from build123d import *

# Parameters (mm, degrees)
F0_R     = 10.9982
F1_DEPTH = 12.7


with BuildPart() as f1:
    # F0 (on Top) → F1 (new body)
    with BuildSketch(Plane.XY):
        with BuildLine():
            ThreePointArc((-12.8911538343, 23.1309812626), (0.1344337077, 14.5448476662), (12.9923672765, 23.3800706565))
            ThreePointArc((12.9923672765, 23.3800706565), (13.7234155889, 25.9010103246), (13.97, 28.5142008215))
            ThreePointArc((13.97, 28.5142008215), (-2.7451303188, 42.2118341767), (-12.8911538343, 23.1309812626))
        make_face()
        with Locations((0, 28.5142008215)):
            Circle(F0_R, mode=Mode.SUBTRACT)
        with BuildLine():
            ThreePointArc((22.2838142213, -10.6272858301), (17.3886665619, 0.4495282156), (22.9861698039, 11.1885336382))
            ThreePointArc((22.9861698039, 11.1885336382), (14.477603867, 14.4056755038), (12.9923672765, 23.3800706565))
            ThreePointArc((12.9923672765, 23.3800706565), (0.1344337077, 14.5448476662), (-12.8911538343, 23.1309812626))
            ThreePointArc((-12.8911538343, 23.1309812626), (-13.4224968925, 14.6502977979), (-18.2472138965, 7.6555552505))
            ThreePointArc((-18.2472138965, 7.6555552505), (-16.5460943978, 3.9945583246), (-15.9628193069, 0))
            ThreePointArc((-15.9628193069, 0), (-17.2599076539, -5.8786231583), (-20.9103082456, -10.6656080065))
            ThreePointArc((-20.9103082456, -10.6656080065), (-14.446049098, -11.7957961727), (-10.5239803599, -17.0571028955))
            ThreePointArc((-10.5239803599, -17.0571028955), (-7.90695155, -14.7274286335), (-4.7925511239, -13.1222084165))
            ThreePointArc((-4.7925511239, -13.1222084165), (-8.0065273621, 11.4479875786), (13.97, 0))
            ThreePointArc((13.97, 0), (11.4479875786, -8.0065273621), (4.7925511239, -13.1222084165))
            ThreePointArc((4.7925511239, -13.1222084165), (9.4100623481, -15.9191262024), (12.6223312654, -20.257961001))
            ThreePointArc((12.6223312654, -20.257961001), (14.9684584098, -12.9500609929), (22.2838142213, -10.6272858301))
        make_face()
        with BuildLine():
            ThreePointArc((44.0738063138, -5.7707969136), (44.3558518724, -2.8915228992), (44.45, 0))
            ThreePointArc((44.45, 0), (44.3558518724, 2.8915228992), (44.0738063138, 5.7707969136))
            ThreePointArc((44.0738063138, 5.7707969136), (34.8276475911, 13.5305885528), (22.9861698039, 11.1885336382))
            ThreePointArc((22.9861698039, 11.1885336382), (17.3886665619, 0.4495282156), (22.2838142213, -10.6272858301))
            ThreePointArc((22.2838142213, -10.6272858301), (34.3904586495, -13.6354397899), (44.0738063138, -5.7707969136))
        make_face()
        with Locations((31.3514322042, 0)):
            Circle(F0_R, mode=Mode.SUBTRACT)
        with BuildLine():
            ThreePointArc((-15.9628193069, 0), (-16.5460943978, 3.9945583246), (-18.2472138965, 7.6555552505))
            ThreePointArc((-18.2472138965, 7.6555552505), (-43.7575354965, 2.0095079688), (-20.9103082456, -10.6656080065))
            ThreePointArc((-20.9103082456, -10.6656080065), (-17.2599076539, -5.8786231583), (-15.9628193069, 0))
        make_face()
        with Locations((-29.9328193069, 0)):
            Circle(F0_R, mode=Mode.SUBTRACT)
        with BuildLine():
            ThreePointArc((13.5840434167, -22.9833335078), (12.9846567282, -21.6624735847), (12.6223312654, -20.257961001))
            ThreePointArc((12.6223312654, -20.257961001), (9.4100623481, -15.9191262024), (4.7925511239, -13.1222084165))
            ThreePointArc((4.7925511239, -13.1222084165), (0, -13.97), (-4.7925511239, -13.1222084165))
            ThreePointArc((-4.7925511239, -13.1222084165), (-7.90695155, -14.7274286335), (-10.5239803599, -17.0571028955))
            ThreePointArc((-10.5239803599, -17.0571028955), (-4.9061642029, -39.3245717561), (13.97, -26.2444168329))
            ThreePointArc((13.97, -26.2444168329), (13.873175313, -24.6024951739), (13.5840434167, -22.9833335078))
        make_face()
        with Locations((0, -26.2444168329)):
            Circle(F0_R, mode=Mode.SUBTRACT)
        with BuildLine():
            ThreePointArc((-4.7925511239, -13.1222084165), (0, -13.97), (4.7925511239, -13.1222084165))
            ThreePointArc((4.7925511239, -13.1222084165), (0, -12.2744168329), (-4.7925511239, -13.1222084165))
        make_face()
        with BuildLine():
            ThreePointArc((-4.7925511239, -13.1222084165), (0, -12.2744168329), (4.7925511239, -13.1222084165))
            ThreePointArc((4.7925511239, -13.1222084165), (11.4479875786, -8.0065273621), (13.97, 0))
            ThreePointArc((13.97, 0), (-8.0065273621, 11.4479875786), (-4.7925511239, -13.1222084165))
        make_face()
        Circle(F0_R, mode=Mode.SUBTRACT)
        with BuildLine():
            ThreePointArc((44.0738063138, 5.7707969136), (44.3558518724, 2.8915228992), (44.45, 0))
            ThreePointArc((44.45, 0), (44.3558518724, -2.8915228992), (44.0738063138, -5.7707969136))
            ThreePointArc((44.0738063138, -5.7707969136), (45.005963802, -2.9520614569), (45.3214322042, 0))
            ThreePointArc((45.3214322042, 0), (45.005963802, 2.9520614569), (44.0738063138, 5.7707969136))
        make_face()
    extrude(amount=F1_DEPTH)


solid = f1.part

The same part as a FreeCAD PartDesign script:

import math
import FreeCAD as App
import Part
import Sketcher
Q = App.Units.Quantity

doc = App.newDocument("Part")
body = doc.addObject("PartDesign::Body", "Body")

sketch1 = body.newObject("Sketcher::SketchObject", "Sketch")
sketch1.AttachmentSupport = (doc.getObject("XY_Plane"), [""])
sketch1.MapMode = "FlatFace"
sketch1.addGeometry([
    Part.ArcOfCircle(Part.Circle(App.Vector(0, 28.5, 0), App.Vector(0, 0, 1), 14), math.radians(0), math.radians(203)),
    Part.ArcOfCircle(Part.Circle(App.Vector(-28.4, 19.8, 0), App.Vector(0, 0, 1), 15.9), math.radians(-50), math.radians(12)),
    Part.ArcOfCircle(Part.Circle(App.Vector(-29.9, 0, 0), App.Vector(0, 0, 1), 14), math.radians(33), math.radians(310)),
    Part.ArcOfCircle(Part.Circle(App.Vector(-19.1, -19.4, 0), App.Vector(0, 0, 1), 8.9), math.radians(15), math.radians(102)),
    Part.ArcOfCircle(Part.Circle(App.Vector(0, -26.2, 0), App.Vector(0, 0, 1), 14), math.radians(139), math.radians(360)),
    Part.ArcOfCircle(Part.Circle(App.Vector(0, -26.2, 0), App.Vector(0, 0, 1), 14), math.radians(0), math.radians(13.5)),
    Part.ArcOfCircle(Part.Circle(App.Vector(20.9, -18.9, 0), App.Vector(0, 0, 1), 8.4), math.radians(-170.51), math.radians(-150.62)),
    Part.ArcOfCircle(Part.Circle(App.Vector(20.9, -18.9, 0), App.Vector(0, 0, 1), 8.4), math.radians(80), math.radians(189)),
    Part.ArcOfCircle(Part.Circle(App.Vector(31.4, 0, 0), App.Vector(0, 0, 1), 14), math.radians(-130), math.radians(-24)),
    Part.ArcOfCircle(Part.Circle(App.Vector(31.4, 0, 0), App.Vector(0, 0, 1), 14), math.radians(-24), math.radians(0)),
    Part.ArcOfCircle(Part.Circle(App.Vector(31.4, 0, 0), App.Vector(0, 0, 1), 14), math.radians(0), math.radians(24)),
    Part.ArcOfCircle(Part.Circle(App.Vector(31.4, 0, 0), App.Vector(0, 0, 1), 14), math.radians(24), math.radians(127)),
    Part.ArcOfCircle(Part.Circle(App.Vector(21.5, 20.2, 0), App.Vector(0, 0, 1), 9.1), math.radians(159), math.radians(279)),
    Part.ArcOfCircle(Part.Circle(App.Vector(0, 28.5, 0), App.Vector(0, 0, 1), 14), math.radians(-22), math.radians(0)),
    Part.Circle(App.Vector(0, -26.2, 0), App.Vector(0, 0, 1), 11),
    Part.Circle(App.Vector(-29.9, 0, 0), App.Vector(0, 0, 1), 11),
    Part.Circle(App.Vector(0, 0, 0), App.Vector(0, 0, 1), 11),
    Part.Circle(App.Vector(31.4, 0, 0), App.Vector(0, 0, 1), 11),
    Part.Circle(App.Vector(0, 28.5, 0), App.Vector(0, 0, 1), 11),
], False)
sketch1.addConstraint([
    Sketcher.Constraint("Coincident", 0, 2, 1, 2),
    Sketcher.Constraint("Coincident", 1, 1, 2, 1),
    Sketcher.Constraint("Coincident", 2, 2, 3, 2),
    Sketcher.Constraint("Coincident", 3, 1, 4, 1),
    Sketcher.Constraint("Tangent", 4, 2, 5, 1),
    Sketcher.Constraint("Coincident", 5, 2, 6, 2),
    Sketcher.Constraint("Tangent", 6, 1, 7, 2),
    Sketcher.Constraint("Coincident", 7, 1, 8, 1),
    Sketcher.Constraint("Tangent", 8, 2, 9, 1),
    Sketcher.Constraint("Tangent", 9, 2, 10, 1),
    Sketcher.Constraint("Tangent", 10, 2, 11, 1),
    Sketcher.Constraint("Coincident", 11, 2, 12, 2),
    Sketcher.Constraint("Coincident", 12, 1, 13, 1),
    Sketcher.Constraint("Tangent", 13, 2, 0, 1),
    Sketcher.Constraint("Coincident", 16, 3, -1, 1),
    Sketcher.Constraint("Coincident", 10, 3, 8, 3),
    Sketcher.Constraint("Coincident", 14, 3, 4, 3),
    Sketcher.Constraint("Coincident", 15, 3, 2, 3),
    Sketcher.Constraint("Coincident", 17, 3, 8, 3),
    Sketcher.Constraint("Coincident", 18, 3, 0, 3),
    Sketcher.Constraint("Equal", 0, 2),
    Sketcher.Constraint("Equal", 2, 4),
    Sketcher.Constraint("Equal", 4, 5),
    Sketcher.Constraint("Equal", 6, 7),
    Sketcher.Constraint("Equal", 5, 8),
    Sketcher.Constraint("Equal", 10, 11),
    Sketcher.Constraint("Equal", 11, 13),
    Sketcher.Constraint("Equal", 14, 15),
    Sketcher.Constraint("Equal", 15, 16),
    Sketcher.Constraint("Equal", 16, 17),
    Sketcher.Constraint("Equal", 17, 18),
    Sketcher.Constraint("Symmetric", 8, 2, 10, 2, -1),
    Sketcher.Constraint("PointOnObject", 0, 3, -2),
    Sketcher.Constraint("PointOnObject", 2, 3, -1),
    Sketcher.Constraint("PointOnObject", 4, 3, -2),
    Sketcher.Constraint("PointOnObject", 9, 2, -1),
    Sketcher.Constraint("Horizontal", 14, 3, 4, 2),
    Sketcher.Constraint("Horizontal", 18, 3, 13, 2),
    Sketcher.Constraint("Radius", 0, Q("0.55 in")),
    Sketcher.Constraint("Diameter", 14, Q("0.866 in")),
    Sketcher.Constraint("DistanceY", -1, 1, 1, 1, Q("0.3013998 in")),
    Sketcher.Constraint("Radius", 1, 15.892673),
    Sketcher.Constraint("Radius", 3, 8.877967),
    Sketcher.Constraint("Radius", 6, 8.369284),
    Sketcher.Constraint("Radius", 12, 9.111486),
    Sketcher.Constraint("DistanceY", -1, 1, 0, 3, 28.514201),
    Sketcher.Constraint("DistanceX", 2, 3, 3, 3, 10.833899),
    Sketcher.Constraint("DistanceX", 3, 3, 6, 3, 39.975898),
    Sketcher.Constraint("DistanceY", -1, 1, 1, 3, 19.84825),
    Sketcher.Constraint("DistanceX", 2, 3, -1, 1, 29.932819),
    Sketcher.Constraint("DistanceY", 3, 3, -1, 1, 19.35682),
    Sketcher.Constraint("DistanceY", 6, 3, -1, 1, 18.877481),
    Sketcher.Constraint("DistanceX", 3, 1, -1, 1, 10.52398),
    Sketcher.Constraint("DistanceX", -1, 1, 6, 1, 12.622331),
    Sketcher.Constraint("DistanceX", -1, 1, 11, 2, 22.98617),
    Sketcher.Constraint("DistanceY", -1, 1, 12, 1, 23.380071),
    Sketcher.Constraint("DistanceX", 12, 1, 12, 3, 8.531778),
    Sketcher.Constraint("DistanceX", -1, 1, 8, 2, 44.073806),
])
pad1 = body.newObject("PartDesign::Pad", "Pad")
pad1.Profile = sketch1
pad1.Length = Q("0.5 in")

doc.recompute()
